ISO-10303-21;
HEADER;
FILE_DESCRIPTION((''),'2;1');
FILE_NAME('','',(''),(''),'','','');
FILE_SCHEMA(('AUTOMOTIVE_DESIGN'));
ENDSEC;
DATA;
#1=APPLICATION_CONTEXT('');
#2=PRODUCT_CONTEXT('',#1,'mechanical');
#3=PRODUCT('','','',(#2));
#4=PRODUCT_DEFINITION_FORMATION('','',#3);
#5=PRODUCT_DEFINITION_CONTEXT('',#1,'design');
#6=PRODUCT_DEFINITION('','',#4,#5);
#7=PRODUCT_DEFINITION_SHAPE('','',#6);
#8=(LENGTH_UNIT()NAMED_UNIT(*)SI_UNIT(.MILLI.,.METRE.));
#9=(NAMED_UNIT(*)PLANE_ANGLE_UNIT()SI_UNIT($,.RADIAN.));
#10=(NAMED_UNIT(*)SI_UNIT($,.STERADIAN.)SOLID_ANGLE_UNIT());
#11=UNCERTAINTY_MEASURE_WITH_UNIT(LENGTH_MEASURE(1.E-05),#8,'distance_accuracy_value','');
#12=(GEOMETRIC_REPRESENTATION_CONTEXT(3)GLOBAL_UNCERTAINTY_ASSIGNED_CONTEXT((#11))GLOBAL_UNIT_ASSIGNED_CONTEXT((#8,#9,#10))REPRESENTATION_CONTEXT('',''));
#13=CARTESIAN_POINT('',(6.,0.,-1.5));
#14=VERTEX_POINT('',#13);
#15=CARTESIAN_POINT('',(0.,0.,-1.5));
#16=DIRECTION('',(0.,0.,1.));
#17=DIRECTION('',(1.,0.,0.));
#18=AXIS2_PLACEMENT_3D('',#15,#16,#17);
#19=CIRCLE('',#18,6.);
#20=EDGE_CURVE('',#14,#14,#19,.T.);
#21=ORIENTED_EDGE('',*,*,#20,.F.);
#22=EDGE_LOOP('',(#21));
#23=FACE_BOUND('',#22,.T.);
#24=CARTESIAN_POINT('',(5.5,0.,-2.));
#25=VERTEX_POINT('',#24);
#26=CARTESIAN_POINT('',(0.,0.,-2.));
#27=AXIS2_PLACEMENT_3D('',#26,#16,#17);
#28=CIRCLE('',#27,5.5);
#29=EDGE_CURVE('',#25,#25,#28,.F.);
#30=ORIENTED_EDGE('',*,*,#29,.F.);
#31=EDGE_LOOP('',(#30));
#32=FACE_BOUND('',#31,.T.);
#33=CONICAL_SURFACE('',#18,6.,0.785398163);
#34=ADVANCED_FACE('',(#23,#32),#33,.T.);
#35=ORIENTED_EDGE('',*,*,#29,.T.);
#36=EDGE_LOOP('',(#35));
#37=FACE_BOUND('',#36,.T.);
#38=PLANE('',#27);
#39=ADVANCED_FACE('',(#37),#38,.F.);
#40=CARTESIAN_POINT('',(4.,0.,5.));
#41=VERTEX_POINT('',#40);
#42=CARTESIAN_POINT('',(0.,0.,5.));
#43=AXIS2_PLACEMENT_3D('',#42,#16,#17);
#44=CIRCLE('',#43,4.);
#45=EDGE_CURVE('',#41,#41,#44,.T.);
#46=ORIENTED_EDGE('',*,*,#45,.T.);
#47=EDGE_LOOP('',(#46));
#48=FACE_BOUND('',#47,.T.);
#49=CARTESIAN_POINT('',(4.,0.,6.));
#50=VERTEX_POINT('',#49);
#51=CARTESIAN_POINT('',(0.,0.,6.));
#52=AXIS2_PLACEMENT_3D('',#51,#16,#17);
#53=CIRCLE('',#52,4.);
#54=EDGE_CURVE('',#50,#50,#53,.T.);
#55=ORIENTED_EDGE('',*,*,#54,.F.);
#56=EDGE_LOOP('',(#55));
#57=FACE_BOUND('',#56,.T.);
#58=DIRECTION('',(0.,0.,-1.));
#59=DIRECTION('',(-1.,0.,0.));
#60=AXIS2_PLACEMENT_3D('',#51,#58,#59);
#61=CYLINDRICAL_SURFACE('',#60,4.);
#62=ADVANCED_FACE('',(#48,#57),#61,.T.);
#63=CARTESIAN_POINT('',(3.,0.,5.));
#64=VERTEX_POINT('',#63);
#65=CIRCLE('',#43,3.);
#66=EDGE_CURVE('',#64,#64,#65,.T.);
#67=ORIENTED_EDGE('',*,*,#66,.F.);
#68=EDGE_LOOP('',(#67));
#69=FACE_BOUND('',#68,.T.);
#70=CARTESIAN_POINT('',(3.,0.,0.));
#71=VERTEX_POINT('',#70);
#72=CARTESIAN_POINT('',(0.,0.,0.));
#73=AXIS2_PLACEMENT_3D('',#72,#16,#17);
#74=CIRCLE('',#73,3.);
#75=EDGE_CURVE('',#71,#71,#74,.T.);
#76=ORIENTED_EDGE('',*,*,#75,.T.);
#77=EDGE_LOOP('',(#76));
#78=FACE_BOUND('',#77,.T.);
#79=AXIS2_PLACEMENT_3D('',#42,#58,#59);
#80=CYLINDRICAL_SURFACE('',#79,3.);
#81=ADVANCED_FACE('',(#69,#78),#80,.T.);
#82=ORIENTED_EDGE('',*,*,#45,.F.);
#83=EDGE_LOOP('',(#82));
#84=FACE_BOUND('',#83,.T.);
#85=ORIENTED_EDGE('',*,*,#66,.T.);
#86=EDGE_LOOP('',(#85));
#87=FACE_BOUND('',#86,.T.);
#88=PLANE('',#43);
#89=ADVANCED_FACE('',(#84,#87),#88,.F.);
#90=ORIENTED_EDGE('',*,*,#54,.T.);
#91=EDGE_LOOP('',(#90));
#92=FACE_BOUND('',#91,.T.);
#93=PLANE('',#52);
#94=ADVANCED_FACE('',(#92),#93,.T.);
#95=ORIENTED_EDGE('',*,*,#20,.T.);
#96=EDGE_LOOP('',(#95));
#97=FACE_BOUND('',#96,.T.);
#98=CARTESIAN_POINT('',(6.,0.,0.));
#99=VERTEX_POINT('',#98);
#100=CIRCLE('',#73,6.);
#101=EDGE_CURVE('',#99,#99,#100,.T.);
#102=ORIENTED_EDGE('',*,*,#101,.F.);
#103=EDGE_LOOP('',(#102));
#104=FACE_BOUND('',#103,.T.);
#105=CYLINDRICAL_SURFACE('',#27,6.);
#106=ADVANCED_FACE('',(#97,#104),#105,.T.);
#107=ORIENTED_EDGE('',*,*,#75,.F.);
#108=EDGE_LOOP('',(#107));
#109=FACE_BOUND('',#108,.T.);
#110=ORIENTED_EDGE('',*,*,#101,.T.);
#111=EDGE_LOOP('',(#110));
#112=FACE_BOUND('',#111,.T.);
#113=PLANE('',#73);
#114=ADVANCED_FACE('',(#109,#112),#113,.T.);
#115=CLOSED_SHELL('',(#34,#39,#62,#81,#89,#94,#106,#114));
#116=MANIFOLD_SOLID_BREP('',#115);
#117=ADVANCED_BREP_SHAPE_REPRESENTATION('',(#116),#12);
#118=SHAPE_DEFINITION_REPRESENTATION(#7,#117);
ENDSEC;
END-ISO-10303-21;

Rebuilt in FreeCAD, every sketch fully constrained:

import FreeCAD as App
import Part
import Sketcher
from FreeCAD import Vector
Q = App.Units.Quantity


def edges_at(feature, points):
    """Names of the edges that pass closest to the given points."""
    edges = feature.Shape.Edges
    near = lambda p: min(range(len(edges)), key=lambda i: edges[i].distToShape(Part.Vertex(*p))[0])
    return sorted({f"Edge{near(p) + 1}" for p in points})

doc = App.newDocument("Part")
body = doc.addObject("PartDesign::Body", "Body")

sketch1 = body.newObject("Sketcher::SketchObject", "Sketch")
sketch1.AttachmentSupport = (doc.getObject("XY_Plane"), [""])
sketch1.MapMode = "FlatFace"
sketch1.addGeometry(Part.Circle(Vector(0, 0, 0), Vector(0, 0, 1), 3), False)
sketch1.addConstraint([
    Sketcher.Constraint("Coincident", 0, 3, -1, 1),
    Sketcher.Constraint("Diameter", 0, Q("6 mm")),
])
pad1 = body.newObject("PartDesign::Pad", "Pad")
pad1.Profile = sketch1
pad1.Length = 5

sketch2 = body.newObject("Sketcher::SketchObject", "Sketch001")
sketch2.AttachmentSupport = (doc.getObject("XY_Plane"), [""])
sketch2.MapMode = "FlatFace"
sketch2.AttachmentOffset = App.Placement(Vector(0, 0, 5), App.Rotation())
sketch2.addGeometry(Part.Circle(Vector(0, 0, 0), Vector(0, 0, 1), 4), False)
sketch2.addConstraint([
    Sketcher.Constraint("Coincident", 0, 3, -1, 1),
    Sketcher.Constraint("Diameter", 0, Q("8 mm")),
])
pad2 = body.newObject("PartDesign::Pad", "Pad001")
pad2.Profile = sketch2
pad2.Length = 1

sketch3 = body.newObject("Sketcher::SketchObject", "Sketch002")
sketch3.AttachmentSupport = (doc.getObject("XY_Plane"), [""])
sketch3.MapMode = "FlatFace"
sketch3.AttachmentOffset = App.Placement(Vector(0, 0, -2), App.Rotation())
sketch3.addGeometry(Part.Circle(Vector(0, 0, 0), Vector(0, 0, 1), 6), False)
sketch3.addConstraint([
    Sketcher.Constraint("Coincident", 0, 3, -1, 1),
    Sketcher.Constraint("Diameter", 0, Q("12 mm")),
])
pad3 = body.newObject("PartDesign::Pad", "Pad002")
pad3.Profile = sketch3
pad3.Length = 2
doc.recompute()

chamfer = body.newObject("PartDesign::Chamfer", "Chamfer")
chamfer.Base = (pad3, edges_at(pad3, [(-6, 0, -2)]))
chamfer.Size = 0.5

doc.recompute()
